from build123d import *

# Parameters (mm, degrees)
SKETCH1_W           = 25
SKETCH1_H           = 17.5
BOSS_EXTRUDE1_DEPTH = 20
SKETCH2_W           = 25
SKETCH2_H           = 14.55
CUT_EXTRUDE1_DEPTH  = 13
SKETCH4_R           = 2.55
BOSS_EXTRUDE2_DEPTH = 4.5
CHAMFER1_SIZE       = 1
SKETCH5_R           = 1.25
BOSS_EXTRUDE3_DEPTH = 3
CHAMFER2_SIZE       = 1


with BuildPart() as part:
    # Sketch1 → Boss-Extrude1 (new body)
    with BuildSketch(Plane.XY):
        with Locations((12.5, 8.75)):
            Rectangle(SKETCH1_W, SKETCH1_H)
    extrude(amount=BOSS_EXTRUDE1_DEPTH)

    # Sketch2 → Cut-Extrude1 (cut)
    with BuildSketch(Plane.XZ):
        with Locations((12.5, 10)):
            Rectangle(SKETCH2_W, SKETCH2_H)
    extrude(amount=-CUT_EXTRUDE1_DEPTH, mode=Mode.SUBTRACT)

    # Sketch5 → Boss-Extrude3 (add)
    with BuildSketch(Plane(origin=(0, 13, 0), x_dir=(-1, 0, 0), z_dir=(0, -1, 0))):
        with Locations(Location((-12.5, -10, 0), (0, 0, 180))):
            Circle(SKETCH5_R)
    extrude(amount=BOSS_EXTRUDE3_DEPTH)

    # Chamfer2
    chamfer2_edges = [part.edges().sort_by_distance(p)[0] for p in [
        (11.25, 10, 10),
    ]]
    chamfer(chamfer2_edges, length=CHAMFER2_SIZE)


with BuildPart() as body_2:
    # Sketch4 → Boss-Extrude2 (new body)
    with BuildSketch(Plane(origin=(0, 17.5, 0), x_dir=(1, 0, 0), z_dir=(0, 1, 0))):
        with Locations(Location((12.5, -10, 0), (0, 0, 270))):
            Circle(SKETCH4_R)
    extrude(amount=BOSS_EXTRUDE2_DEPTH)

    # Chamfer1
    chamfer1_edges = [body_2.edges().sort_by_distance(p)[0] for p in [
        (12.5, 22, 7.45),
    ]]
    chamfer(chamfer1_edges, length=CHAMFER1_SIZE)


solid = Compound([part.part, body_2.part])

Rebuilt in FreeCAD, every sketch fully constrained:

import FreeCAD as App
import Part
import Sketcher

V = App.Vector
Q = App.Units.Quantity


def edges_at(feature, points):
    """Names of the edges that pass closest to the given points."""
    edges = feature.Shape.Edges
    near = lambda p: min(range(len(edges)), key=lambda i: edges[i].distToShape(Part.Vertex(*p))[0])
    return sorted({f"Edge{near(p) + 1}" for p in points})


def add_polygon(sketch, points):
    """Adds a closed chain of lines whose ends are joined by coincident constraints."""
    first, n = sketch.GeometryCount, len(points)
    for a, b in zip(points, points[1:] + points[:1]):
        sketch.addGeometry(Part.LineSegment(App.Vector(*a, 0), App.Vector(*b, 0)), False)
    for i in range(n):
        sketch.addConstraint(Sketcher.Constraint("Coincident", first + i, 2, first + (i + 1) % n, 1))

doc = App.newDocument("Part")
body = doc.addObject("PartDesign::Body", "Body")

# Sketch on XY plane
sketch1 = body.newObject("Sketcher::SketchObject", "Sketch")
sketch1.AttachmentSupport = (doc.getObject("XY_Plane"), [""])
sketch1.MapMode = "FlatFace"
add_polygon(sketch1, [(0, 18), (0, 0), (25, 0), (25, 18)])  # lines 0-3
sketch1.addConstraint(Sketcher.Constraint("Vertical", 0))
sketch1.addConstraint(Sketcher.Constraint("Horizontal", 1))
sketch1.addConstraint(Sketcher.Constraint("Vertical", 2))
sketch1.addConstraint(Sketcher.Constraint("Horizontal", 3))
sketch1.addConstraint(Sketcher.Constraint("Coincident", 0, 2, -1, 1))
sketch1.addConstraint(Sketcher.Constraint("DistanceX", 1, 1, 1, 2, Q("25 mm")))
sketch1.addConstraint(Sketcher.Constraint("DistanceY", 0, 2, 0, 1, Q("17.5 mm")))
pad1 = body.newObject("PartDesign::Pad", "Pad")
pad1.Profile = sketch1
pad1.Length = 20

# Sketch on XZ plane
sketch2 = body.newObject("Sketcher::SketchObject", "Sketch001")
sketch2.AttachmentSupport = (doc.getObject("XZ_Plane"), [""])
sketch2.MapMode = "FlatFace"
add_polygon(sketch2, [(0, 17), (0, 3), (25, 3), (25, 17)])  # lines 0-3
sketch2.addConstraint(Sketcher.Constraint("Vertical", 0))
sketch2.addConstraint(Sketcher.Constraint("Horizontal", 1))
sketch2.addConstraint(Sketcher.Constraint("Vertical", 2))
sketch2.addConstraint(Sketcher.Constraint("Horizontal", 3))
sketch2.addConstraint(Sketcher.Constraint("PointOnObject", 0, 2, -2))
sketch2.addConstraint(Sketcher.Constraint("DistanceX", 1, 1, 1, 2, Q("25 mm")))
sketch2.addConstraint(Sketcher.Constraint("DistanceY", 0, 2, 0, 1, Q("14.55 mm")))
sketch2.addConstraint(Sketcher.Constraint("DistanceY", -1, 1, 0, 2, Q("2.725 mm")))
pocket1 = body.newObject("PartDesign::Pocket", "Pocket")
pocket1.Profile = sketch2
pocket1.Length = 13

# Sketch on XZ plane
sketch3 = body.newObject("Sketcher::SketchObject", "Sketch002")
sketch3.AttachmentSupport = (doc.getObject("XZ_Plane"), [""])
sketch3.MapMode = "FlatFace"
sketch3.AttachmentOffset = App.Placement(V(0, 0, -13), App.Rotation())
sketch3.addGeometry(Part.Circle(V(12.5, 10, 0), V(0, 0, 1), 1.2), False)
sketch3.addConstraint(Sketcher.Constraint("Diameter", 0, Q("2.5 mm")))
sketch3.addConstraint(Sketcher.Constraint("DistanceY", -1, 1, 0, 3, Q("10 mm")))
sketch3.addConstraint(Sketcher.Constraint("DistanceX", -1, 1, 0, 3, Q("12.5 mm")))
pad2 = body.newObject("PartDesign::Pad", "Pad001")
pad2.Profile = sketch3
pad2.Length = 3
doc.recompute()

chamfer = body.newObject("PartDesign::Chamfer", "Chamfer")
chamfer.Base = (pad2, edges_at(pad2, [(11.25, 10, 10)]))
chamfer.Size = 1
body2 = doc.addObject("PartDesign::Body", "Body001")

# Sketch on XZ plane
sketch4 = body2.newObject("Sketcher::SketchObject", "Sketch003")
sketch4.AttachmentSupport = (doc.getObject("XZ_Plane001"), [""])
sketch4.MapMode = "FlatFace"
sketch4.AttachmentOffset = App.Placement(V(0, 0, -17.5), App.Rotation())
sketch4.addGeometry(Part.Circle(V(12.5, 10, 0), V(0, 0, 1), 2.5), False)
sketch4.addConstraint(Sketcher.Constraint("Diameter", 0, Q("5.1 mm")))
sketch4.addConstraint(Sketcher.Constraint("DistanceY", -1, 1, 0, 3, Q("10 mm")))
sketch4.addConstraint(Sketcher.Constraint("DistanceX", -1, 1, 0, 3, Q("12.5 mm")))
pad3 = body2.newObject("PartDesign::Pad", "Pad002")
pad3.Profile = sketch4
pad3.Length = 4.5
pad3.Reversed = True
doc.recompute()

chamfer2 = body2.newObject("PartDesign::Chamfer", "Chamfer001")
chamfer2.Base = (pad3, edges_at(pad3, [(12.5, 22, 7.45)]))
chamfer2.Size = 1

doc.recompute()
